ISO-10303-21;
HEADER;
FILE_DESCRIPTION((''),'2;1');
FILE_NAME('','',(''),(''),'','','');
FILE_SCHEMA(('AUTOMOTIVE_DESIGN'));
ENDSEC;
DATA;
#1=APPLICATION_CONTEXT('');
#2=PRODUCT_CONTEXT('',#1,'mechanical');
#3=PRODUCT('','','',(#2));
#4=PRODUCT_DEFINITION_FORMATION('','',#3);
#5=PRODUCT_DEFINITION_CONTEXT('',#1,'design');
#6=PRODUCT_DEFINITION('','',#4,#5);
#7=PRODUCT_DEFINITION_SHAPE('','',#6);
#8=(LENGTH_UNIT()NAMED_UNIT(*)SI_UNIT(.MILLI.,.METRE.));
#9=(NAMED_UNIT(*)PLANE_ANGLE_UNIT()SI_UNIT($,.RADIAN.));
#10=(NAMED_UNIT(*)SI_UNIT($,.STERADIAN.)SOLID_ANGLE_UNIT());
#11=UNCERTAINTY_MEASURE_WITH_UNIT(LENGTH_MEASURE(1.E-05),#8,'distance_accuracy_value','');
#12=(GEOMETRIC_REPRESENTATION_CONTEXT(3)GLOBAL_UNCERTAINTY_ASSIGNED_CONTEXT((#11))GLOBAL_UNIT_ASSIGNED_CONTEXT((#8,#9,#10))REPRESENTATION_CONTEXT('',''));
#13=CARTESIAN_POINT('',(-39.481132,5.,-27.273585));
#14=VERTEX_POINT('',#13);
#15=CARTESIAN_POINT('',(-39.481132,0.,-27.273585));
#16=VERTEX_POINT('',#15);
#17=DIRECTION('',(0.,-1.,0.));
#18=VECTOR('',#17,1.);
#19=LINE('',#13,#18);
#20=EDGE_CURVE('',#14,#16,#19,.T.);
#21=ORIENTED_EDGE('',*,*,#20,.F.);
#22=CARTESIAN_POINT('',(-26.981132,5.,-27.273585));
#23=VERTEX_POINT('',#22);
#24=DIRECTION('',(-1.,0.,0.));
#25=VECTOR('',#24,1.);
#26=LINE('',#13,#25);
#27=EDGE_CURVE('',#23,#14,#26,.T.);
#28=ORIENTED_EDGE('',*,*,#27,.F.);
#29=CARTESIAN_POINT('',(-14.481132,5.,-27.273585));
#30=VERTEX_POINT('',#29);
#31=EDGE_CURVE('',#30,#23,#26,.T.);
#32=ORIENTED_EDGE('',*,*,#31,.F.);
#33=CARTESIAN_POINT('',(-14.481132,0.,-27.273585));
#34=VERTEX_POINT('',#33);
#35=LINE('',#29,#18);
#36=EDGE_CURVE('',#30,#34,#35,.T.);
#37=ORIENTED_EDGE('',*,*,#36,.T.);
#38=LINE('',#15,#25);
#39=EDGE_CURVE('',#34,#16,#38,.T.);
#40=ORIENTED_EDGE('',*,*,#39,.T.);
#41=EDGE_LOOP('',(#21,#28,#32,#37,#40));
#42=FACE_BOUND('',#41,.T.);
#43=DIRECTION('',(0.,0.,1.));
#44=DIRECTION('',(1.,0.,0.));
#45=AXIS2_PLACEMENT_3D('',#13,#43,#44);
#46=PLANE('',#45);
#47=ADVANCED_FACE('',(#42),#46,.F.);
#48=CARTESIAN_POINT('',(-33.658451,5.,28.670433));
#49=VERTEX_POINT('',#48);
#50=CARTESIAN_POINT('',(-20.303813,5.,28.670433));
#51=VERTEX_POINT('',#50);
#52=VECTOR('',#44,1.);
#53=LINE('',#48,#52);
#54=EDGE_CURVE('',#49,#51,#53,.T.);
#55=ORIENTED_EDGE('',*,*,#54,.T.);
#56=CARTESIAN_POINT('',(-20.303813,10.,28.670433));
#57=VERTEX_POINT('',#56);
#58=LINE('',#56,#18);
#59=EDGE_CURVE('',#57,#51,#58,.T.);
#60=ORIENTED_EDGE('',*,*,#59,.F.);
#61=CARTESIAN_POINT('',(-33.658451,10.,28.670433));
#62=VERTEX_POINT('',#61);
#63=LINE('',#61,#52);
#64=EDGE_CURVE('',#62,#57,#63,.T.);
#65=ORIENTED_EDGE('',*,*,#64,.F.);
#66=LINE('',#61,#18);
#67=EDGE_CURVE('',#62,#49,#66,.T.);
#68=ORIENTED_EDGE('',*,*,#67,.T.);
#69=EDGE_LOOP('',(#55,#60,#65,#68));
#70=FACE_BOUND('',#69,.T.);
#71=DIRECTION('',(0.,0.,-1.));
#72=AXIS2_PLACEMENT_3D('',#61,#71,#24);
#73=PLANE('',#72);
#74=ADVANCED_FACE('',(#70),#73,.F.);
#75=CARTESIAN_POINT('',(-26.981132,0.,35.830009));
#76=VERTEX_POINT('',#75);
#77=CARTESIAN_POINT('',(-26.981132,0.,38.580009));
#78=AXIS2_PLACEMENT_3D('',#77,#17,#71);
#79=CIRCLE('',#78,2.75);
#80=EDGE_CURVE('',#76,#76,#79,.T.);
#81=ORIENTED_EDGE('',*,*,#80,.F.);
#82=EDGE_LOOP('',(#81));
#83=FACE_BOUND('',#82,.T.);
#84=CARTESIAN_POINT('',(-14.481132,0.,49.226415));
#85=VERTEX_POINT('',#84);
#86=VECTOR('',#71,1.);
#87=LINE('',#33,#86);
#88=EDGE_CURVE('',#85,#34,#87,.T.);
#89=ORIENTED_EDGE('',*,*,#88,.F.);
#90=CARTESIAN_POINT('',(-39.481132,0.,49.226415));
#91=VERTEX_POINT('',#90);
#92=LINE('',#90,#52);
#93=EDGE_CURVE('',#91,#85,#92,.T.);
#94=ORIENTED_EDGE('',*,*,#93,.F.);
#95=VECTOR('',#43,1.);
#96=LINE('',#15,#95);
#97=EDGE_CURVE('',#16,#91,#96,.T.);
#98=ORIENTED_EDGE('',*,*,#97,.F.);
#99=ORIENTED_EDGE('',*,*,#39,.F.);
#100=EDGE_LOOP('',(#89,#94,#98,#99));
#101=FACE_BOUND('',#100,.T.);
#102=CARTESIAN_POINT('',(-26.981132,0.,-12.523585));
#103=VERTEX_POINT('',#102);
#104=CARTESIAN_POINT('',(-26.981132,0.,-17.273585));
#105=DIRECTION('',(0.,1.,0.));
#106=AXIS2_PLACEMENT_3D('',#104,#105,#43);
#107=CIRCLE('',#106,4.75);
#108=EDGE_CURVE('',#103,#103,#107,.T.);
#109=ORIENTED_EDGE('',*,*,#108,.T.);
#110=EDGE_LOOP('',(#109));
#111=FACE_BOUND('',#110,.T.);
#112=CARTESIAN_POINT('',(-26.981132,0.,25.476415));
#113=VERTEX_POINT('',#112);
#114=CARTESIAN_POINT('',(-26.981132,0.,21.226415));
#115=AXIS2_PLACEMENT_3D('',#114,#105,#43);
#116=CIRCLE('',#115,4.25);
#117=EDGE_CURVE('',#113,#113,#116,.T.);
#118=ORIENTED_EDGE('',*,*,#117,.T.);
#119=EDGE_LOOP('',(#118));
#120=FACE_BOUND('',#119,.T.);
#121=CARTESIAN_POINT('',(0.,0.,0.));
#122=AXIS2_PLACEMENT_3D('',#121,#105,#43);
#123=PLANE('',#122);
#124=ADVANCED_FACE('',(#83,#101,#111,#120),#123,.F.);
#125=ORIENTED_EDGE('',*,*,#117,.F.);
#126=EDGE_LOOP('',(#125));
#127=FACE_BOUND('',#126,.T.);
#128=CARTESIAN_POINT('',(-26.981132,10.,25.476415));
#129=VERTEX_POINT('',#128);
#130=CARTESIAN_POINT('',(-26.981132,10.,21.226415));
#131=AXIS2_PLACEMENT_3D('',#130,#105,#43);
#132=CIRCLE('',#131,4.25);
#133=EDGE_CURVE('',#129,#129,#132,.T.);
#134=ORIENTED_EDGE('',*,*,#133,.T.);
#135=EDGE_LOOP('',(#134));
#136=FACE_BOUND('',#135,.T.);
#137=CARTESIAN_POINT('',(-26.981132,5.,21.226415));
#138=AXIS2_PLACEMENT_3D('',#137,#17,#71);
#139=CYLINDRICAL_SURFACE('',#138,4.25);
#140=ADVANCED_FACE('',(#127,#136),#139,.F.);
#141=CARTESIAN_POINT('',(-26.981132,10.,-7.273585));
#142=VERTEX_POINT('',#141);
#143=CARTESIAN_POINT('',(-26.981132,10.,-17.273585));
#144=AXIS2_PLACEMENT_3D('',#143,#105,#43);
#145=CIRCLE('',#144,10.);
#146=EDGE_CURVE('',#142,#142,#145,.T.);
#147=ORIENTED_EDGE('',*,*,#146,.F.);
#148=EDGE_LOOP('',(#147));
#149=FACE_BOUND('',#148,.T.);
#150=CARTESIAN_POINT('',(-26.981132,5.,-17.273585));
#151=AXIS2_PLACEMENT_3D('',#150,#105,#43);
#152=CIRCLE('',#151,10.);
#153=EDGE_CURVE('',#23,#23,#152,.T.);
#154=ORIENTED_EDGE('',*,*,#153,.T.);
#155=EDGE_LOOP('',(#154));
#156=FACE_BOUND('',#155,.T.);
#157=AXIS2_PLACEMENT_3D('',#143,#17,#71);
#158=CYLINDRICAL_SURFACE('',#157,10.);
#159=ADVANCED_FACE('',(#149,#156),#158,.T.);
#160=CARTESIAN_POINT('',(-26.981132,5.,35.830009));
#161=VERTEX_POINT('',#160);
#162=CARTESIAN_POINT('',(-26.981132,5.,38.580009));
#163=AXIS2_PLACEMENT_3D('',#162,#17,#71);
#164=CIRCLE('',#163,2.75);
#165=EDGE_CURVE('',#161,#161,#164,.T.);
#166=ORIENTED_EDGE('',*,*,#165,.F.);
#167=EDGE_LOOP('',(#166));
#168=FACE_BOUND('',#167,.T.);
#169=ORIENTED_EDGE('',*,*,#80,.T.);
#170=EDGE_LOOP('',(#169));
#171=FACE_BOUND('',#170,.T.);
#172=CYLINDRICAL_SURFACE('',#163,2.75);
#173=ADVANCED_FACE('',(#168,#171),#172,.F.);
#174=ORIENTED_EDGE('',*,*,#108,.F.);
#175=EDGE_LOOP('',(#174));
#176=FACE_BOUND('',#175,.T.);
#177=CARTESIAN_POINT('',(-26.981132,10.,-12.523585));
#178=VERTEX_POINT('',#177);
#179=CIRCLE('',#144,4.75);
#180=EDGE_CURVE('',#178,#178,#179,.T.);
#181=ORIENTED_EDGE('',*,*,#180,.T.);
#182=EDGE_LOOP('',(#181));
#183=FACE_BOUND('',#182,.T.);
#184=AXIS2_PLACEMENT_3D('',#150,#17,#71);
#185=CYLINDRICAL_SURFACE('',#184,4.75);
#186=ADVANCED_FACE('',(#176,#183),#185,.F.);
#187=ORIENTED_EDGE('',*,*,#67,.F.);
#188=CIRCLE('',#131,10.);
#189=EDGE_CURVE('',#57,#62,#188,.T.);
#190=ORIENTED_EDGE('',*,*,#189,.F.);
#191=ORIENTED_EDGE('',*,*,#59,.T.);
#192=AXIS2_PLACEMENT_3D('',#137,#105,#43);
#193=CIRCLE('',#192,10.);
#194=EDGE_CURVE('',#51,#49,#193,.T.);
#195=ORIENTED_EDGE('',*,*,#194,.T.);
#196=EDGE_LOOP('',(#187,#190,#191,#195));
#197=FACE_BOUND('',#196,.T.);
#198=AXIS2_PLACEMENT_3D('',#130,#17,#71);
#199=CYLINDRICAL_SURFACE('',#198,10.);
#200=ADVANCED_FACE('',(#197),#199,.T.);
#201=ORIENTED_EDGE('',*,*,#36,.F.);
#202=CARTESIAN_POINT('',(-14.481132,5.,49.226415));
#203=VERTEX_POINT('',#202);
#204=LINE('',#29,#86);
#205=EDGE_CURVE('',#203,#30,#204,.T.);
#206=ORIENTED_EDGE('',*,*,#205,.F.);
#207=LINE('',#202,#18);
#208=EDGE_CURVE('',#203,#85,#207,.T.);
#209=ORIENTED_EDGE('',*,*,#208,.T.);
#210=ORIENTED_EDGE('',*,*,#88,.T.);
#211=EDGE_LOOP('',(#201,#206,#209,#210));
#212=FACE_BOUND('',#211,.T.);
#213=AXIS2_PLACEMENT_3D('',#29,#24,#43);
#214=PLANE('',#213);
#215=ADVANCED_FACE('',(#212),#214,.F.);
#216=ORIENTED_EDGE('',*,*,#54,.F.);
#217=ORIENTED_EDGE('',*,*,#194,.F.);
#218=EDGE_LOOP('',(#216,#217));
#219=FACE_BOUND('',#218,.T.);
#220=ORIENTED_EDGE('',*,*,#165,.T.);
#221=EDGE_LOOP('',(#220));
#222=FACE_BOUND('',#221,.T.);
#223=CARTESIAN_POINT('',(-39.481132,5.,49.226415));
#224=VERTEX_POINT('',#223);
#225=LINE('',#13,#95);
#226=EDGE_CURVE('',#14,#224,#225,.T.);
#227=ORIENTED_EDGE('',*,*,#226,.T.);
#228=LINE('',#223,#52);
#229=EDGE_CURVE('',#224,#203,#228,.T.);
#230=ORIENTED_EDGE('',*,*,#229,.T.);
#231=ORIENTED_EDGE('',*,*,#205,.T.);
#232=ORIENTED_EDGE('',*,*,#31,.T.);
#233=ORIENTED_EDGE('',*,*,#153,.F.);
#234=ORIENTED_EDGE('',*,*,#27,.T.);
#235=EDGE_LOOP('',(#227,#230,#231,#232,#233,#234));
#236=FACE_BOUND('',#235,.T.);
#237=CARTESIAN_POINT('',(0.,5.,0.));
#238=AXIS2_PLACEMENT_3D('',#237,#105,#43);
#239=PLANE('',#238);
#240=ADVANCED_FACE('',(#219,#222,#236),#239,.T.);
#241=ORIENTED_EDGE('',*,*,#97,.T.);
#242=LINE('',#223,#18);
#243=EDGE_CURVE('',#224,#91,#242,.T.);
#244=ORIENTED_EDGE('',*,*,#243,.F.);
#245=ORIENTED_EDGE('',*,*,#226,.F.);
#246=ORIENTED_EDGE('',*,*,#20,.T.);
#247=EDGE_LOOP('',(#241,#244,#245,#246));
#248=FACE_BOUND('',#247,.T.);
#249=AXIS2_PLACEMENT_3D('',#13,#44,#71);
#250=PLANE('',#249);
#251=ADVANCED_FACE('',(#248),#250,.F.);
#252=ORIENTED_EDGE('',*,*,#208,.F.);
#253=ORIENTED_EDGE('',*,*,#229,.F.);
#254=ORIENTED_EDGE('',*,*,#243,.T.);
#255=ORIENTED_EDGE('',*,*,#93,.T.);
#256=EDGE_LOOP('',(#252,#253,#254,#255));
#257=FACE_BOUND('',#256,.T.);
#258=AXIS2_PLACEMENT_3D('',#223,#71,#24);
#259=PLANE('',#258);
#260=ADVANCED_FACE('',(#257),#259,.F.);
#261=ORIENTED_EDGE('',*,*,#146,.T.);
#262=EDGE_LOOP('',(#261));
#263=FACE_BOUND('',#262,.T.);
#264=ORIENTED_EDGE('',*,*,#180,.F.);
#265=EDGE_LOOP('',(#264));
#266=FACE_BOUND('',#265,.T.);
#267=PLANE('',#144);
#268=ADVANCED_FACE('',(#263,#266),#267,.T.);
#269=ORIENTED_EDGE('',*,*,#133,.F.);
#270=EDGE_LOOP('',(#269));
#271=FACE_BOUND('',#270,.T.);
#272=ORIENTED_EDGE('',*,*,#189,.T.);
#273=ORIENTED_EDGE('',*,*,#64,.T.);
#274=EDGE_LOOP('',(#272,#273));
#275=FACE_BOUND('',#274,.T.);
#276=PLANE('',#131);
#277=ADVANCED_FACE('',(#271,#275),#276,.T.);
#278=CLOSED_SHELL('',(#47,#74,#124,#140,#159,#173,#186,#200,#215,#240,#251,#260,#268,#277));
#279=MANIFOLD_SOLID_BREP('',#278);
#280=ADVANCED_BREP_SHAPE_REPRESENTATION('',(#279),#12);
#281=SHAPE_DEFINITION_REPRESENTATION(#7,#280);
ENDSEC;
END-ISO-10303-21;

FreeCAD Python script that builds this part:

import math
import FreeCAD as App
import Part
import Sketcher

V = App.Vector
Q = App.Units.Quantity

doc = App.newDocument("Part")
body = doc.addObject("PartDesign::Body", "Body")

# Sketch on XZ plane
sketch1 = body.newObject("Sketcher::SketchObject", "Sketch")
sketch1.AttachmentSupport = (doc.getObject("XZ_Plane"), [""])
sketch1.MapMode = "FlatFace"
sketch1.addGeometry(Part.LineSegment(V(-39.5, -27.3, 0), V(-39.5, 49.2, 0)), False)
sketch1.addGeometry(Part.LineSegment(V(-39.5, 49.2, 0), V(-14.5, 49.2, 0)), False)
sketch1.addGeometry(Part.LineSegment(V(-14.5, 49.2, 0), V(-14.5, -27.3, 0)), False)
sketch1.addGeometry(Part.LineSegment(V(-14.5, -27.3, 0), V(-39.5, -27.3, 0)), False)
sketch1.addGeometry(Part.Circle(V(-27, 21.2, 0), V(0, 0, 1), 4.2), False)
sketch1.addGeometry(Part.Circle(V(-27, -17.3, 0), V(0, 0, 1), 4.8), False)
sketch1.addConstraint(Sketcher.Constraint("Coincident", 0, 2, 1, 1))
sketch1.addConstraint(Sketcher.Constraint("Coincident", 1, 2, 2, 1))
sketch1.addConstraint(Sketcher.Constraint("Coincident", 2, 2, 3, 1))
sketch1.addConstraint(Sketcher.Constraint("Coincident", 3, 2, 0, 1))
sketch1.addConstraint(Sketcher.Constraint("Vertical", 0))
sketch1.addConstraint(Sketcher.Constraint("Horizontal", 1))
sketch1.addConstraint(Sketcher.Constraint("Vertical", 2))
sketch1.addConstraint(Sketcher.Constraint("Horizontal", 3))
sketch1.addConstraint(Sketcher.Constraint("Vertical", 4, 3, 5, 3))
sketch1.addConstraint(Sketcher.Constraint("Diameter", 4, Q("8.5 mm")))
sketch1.addConstraint(Sketcher.Constraint("Diameter", 5, Q("9.5 mm")))
sketch1.addConstraint(Sketcher.Constraint("DistanceX", 1, 1, 1, 2, Q("25 mm")))
sketch1.addConstraint(Sketcher.Constraint("DistanceY", 0, 1, 0, 2, Q("76.5 mm")))
sketch1.addConstraint(Sketcher.Constraint("DistanceY", 4, 3, 0, 2, Q("28 mm")))
sketch1.addConstraint(Sketcher.Constraint("DistanceY", 2, 2, 5, 3, Q("10 mm")))
sketch1.addConstraint(Sketcher.Constraint("DistanceX", 0, 2, 4, 3, Q("12.5 mm")))
sketch1.addConstraint(Sketcher.Constraint("DistanceX", 4, 3, -1, 1, Q("26.981132 mm")))
sketch1.addConstraint(Sketcher.Constraint("DistanceY", -1, 1, 4, 3, Q("21.226415 mm")))
pad1 = body.newObject("PartDesign::Pad", "Pad")
pad1.Profile = sketch1
pad1.Length = 5
pad1.Reversed = True

# Sketch on XZ plane
sketch2 = body.newObject("Sketcher::SketchObject", "Sketch001")
sketch2.AttachmentSupport = (doc.getObject("XZ_Plane"), [""])
sketch2.MapMode = "FlatFace"
sketch2.addGeometry(Part.Circle(V(-27, 38.6, 0), V(0, 0, 1), 2.8), False)
sketch2.addConstraint(Sketcher.Constraint("Diameter", 0, Q("5.5 mm")))
sketch2.addConstraint(Sketcher.Constraint("DistanceY", -1, 1, 0, 3, Q("38.580009 mm")))
sketch2.addConstraint(Sketcher.Constraint("DistanceX", 0, 3, -1, 1, Q("26.981132 mm")))
pocket1 = body.newObject("PartDesign::Pocket", "Pocket")
pocket1.Profile = sketch2
pocket1.Type = "ThroughAll"

# Sketch on XZ plane
sketch3 = body.newObject("Sketcher::SketchObject", "Sketch002")
sketch3.AttachmentSupport = (doc.getObject("XZ_Plane"), [""])
sketch3.MapMode = "FlatFace"
sketch3.AttachmentOffset = App.Placement(V(0, 0, -5), App.Rotation())
sketch3.addGeometry(Part.Circle(V(-27, -17.3, 0), V(0, 0, 1), 10), False)
sketch3.addGeometry(Part.Circle(V(-27, -17.3, 0), V(0, 0, 1), 4.8), False)
sketch3.addGeometry(Part.LineSegment(V(-33.7, 28.7, 0), V(-20.3, 28.7, 0)), False)
sketch3.addGeometry(Part.ArcOfCircle(Part.Circle(V(-27, 21.2, 0), V(0, 0, 1), 10), math.radians(132), math.radians(408)), False)
sketch3.addGeometry(Part.Circle(V(-27, 21.2, 0), V(0, 0, 1), 4.2), False)
sketch3.addConstraint(Sketcher.Constraint("Coincident", 2, 1, 3, 1))
sketch3.addConstraint(Sketcher.Constraint("Coincident", 3, 2, 2, 2))
sketch3.addConstraint(Sketcher.Constraint("Horizontal", 2))
sketch3.addConstraint(Sketcher.Constraint("Coincident", 1, 3, 0, 3))
sketch3.addConstraint(Sketcher.Constraint("Coincident", 4, 3, 3, 3))
sketch3.addConstraint(Sketcher.Constraint("Equal", 0, 3))
sketch3.addConstraint(Sketcher.Constraint("Vertical", 1, 3, 3, 3))
sketch3.addConstraint(Sketcher.Constraint("Diameter", 0, Q("20 mm")))
sketch3.addConstraint(Sketcher.Constraint("Diameter", 1, Q("9.5 mm")))
sketch3.addConstraint(Sketcher.Constraint("Diameter", 4, Q("8.5 mm")))
sketch3.addConstraint(Sketcher.Constraint("DistanceY", 0, 3, 3, 3, Q("38.5 mm")))
sketch3.addConstraint(Sketcher.Constraint("DistanceX", 2, 1, 2, 2, Q("13.354638 mm")))
sketch3.addConstraint(Sketcher.Constraint("DistanceX", 2, 1, -1, 1, Q("33.658451 mm")))
sketch3.addConstraint(Sketcher.Constraint("DistanceY", 0, 3, -1, 1, Q("17.273585 mm")))
pad2 = body.newObject("PartDesign::Pad", "Pad001")
pad2.Profile = sketch3
pad2.Length = 5
pad2.Reversed = True

doc.recompute()
